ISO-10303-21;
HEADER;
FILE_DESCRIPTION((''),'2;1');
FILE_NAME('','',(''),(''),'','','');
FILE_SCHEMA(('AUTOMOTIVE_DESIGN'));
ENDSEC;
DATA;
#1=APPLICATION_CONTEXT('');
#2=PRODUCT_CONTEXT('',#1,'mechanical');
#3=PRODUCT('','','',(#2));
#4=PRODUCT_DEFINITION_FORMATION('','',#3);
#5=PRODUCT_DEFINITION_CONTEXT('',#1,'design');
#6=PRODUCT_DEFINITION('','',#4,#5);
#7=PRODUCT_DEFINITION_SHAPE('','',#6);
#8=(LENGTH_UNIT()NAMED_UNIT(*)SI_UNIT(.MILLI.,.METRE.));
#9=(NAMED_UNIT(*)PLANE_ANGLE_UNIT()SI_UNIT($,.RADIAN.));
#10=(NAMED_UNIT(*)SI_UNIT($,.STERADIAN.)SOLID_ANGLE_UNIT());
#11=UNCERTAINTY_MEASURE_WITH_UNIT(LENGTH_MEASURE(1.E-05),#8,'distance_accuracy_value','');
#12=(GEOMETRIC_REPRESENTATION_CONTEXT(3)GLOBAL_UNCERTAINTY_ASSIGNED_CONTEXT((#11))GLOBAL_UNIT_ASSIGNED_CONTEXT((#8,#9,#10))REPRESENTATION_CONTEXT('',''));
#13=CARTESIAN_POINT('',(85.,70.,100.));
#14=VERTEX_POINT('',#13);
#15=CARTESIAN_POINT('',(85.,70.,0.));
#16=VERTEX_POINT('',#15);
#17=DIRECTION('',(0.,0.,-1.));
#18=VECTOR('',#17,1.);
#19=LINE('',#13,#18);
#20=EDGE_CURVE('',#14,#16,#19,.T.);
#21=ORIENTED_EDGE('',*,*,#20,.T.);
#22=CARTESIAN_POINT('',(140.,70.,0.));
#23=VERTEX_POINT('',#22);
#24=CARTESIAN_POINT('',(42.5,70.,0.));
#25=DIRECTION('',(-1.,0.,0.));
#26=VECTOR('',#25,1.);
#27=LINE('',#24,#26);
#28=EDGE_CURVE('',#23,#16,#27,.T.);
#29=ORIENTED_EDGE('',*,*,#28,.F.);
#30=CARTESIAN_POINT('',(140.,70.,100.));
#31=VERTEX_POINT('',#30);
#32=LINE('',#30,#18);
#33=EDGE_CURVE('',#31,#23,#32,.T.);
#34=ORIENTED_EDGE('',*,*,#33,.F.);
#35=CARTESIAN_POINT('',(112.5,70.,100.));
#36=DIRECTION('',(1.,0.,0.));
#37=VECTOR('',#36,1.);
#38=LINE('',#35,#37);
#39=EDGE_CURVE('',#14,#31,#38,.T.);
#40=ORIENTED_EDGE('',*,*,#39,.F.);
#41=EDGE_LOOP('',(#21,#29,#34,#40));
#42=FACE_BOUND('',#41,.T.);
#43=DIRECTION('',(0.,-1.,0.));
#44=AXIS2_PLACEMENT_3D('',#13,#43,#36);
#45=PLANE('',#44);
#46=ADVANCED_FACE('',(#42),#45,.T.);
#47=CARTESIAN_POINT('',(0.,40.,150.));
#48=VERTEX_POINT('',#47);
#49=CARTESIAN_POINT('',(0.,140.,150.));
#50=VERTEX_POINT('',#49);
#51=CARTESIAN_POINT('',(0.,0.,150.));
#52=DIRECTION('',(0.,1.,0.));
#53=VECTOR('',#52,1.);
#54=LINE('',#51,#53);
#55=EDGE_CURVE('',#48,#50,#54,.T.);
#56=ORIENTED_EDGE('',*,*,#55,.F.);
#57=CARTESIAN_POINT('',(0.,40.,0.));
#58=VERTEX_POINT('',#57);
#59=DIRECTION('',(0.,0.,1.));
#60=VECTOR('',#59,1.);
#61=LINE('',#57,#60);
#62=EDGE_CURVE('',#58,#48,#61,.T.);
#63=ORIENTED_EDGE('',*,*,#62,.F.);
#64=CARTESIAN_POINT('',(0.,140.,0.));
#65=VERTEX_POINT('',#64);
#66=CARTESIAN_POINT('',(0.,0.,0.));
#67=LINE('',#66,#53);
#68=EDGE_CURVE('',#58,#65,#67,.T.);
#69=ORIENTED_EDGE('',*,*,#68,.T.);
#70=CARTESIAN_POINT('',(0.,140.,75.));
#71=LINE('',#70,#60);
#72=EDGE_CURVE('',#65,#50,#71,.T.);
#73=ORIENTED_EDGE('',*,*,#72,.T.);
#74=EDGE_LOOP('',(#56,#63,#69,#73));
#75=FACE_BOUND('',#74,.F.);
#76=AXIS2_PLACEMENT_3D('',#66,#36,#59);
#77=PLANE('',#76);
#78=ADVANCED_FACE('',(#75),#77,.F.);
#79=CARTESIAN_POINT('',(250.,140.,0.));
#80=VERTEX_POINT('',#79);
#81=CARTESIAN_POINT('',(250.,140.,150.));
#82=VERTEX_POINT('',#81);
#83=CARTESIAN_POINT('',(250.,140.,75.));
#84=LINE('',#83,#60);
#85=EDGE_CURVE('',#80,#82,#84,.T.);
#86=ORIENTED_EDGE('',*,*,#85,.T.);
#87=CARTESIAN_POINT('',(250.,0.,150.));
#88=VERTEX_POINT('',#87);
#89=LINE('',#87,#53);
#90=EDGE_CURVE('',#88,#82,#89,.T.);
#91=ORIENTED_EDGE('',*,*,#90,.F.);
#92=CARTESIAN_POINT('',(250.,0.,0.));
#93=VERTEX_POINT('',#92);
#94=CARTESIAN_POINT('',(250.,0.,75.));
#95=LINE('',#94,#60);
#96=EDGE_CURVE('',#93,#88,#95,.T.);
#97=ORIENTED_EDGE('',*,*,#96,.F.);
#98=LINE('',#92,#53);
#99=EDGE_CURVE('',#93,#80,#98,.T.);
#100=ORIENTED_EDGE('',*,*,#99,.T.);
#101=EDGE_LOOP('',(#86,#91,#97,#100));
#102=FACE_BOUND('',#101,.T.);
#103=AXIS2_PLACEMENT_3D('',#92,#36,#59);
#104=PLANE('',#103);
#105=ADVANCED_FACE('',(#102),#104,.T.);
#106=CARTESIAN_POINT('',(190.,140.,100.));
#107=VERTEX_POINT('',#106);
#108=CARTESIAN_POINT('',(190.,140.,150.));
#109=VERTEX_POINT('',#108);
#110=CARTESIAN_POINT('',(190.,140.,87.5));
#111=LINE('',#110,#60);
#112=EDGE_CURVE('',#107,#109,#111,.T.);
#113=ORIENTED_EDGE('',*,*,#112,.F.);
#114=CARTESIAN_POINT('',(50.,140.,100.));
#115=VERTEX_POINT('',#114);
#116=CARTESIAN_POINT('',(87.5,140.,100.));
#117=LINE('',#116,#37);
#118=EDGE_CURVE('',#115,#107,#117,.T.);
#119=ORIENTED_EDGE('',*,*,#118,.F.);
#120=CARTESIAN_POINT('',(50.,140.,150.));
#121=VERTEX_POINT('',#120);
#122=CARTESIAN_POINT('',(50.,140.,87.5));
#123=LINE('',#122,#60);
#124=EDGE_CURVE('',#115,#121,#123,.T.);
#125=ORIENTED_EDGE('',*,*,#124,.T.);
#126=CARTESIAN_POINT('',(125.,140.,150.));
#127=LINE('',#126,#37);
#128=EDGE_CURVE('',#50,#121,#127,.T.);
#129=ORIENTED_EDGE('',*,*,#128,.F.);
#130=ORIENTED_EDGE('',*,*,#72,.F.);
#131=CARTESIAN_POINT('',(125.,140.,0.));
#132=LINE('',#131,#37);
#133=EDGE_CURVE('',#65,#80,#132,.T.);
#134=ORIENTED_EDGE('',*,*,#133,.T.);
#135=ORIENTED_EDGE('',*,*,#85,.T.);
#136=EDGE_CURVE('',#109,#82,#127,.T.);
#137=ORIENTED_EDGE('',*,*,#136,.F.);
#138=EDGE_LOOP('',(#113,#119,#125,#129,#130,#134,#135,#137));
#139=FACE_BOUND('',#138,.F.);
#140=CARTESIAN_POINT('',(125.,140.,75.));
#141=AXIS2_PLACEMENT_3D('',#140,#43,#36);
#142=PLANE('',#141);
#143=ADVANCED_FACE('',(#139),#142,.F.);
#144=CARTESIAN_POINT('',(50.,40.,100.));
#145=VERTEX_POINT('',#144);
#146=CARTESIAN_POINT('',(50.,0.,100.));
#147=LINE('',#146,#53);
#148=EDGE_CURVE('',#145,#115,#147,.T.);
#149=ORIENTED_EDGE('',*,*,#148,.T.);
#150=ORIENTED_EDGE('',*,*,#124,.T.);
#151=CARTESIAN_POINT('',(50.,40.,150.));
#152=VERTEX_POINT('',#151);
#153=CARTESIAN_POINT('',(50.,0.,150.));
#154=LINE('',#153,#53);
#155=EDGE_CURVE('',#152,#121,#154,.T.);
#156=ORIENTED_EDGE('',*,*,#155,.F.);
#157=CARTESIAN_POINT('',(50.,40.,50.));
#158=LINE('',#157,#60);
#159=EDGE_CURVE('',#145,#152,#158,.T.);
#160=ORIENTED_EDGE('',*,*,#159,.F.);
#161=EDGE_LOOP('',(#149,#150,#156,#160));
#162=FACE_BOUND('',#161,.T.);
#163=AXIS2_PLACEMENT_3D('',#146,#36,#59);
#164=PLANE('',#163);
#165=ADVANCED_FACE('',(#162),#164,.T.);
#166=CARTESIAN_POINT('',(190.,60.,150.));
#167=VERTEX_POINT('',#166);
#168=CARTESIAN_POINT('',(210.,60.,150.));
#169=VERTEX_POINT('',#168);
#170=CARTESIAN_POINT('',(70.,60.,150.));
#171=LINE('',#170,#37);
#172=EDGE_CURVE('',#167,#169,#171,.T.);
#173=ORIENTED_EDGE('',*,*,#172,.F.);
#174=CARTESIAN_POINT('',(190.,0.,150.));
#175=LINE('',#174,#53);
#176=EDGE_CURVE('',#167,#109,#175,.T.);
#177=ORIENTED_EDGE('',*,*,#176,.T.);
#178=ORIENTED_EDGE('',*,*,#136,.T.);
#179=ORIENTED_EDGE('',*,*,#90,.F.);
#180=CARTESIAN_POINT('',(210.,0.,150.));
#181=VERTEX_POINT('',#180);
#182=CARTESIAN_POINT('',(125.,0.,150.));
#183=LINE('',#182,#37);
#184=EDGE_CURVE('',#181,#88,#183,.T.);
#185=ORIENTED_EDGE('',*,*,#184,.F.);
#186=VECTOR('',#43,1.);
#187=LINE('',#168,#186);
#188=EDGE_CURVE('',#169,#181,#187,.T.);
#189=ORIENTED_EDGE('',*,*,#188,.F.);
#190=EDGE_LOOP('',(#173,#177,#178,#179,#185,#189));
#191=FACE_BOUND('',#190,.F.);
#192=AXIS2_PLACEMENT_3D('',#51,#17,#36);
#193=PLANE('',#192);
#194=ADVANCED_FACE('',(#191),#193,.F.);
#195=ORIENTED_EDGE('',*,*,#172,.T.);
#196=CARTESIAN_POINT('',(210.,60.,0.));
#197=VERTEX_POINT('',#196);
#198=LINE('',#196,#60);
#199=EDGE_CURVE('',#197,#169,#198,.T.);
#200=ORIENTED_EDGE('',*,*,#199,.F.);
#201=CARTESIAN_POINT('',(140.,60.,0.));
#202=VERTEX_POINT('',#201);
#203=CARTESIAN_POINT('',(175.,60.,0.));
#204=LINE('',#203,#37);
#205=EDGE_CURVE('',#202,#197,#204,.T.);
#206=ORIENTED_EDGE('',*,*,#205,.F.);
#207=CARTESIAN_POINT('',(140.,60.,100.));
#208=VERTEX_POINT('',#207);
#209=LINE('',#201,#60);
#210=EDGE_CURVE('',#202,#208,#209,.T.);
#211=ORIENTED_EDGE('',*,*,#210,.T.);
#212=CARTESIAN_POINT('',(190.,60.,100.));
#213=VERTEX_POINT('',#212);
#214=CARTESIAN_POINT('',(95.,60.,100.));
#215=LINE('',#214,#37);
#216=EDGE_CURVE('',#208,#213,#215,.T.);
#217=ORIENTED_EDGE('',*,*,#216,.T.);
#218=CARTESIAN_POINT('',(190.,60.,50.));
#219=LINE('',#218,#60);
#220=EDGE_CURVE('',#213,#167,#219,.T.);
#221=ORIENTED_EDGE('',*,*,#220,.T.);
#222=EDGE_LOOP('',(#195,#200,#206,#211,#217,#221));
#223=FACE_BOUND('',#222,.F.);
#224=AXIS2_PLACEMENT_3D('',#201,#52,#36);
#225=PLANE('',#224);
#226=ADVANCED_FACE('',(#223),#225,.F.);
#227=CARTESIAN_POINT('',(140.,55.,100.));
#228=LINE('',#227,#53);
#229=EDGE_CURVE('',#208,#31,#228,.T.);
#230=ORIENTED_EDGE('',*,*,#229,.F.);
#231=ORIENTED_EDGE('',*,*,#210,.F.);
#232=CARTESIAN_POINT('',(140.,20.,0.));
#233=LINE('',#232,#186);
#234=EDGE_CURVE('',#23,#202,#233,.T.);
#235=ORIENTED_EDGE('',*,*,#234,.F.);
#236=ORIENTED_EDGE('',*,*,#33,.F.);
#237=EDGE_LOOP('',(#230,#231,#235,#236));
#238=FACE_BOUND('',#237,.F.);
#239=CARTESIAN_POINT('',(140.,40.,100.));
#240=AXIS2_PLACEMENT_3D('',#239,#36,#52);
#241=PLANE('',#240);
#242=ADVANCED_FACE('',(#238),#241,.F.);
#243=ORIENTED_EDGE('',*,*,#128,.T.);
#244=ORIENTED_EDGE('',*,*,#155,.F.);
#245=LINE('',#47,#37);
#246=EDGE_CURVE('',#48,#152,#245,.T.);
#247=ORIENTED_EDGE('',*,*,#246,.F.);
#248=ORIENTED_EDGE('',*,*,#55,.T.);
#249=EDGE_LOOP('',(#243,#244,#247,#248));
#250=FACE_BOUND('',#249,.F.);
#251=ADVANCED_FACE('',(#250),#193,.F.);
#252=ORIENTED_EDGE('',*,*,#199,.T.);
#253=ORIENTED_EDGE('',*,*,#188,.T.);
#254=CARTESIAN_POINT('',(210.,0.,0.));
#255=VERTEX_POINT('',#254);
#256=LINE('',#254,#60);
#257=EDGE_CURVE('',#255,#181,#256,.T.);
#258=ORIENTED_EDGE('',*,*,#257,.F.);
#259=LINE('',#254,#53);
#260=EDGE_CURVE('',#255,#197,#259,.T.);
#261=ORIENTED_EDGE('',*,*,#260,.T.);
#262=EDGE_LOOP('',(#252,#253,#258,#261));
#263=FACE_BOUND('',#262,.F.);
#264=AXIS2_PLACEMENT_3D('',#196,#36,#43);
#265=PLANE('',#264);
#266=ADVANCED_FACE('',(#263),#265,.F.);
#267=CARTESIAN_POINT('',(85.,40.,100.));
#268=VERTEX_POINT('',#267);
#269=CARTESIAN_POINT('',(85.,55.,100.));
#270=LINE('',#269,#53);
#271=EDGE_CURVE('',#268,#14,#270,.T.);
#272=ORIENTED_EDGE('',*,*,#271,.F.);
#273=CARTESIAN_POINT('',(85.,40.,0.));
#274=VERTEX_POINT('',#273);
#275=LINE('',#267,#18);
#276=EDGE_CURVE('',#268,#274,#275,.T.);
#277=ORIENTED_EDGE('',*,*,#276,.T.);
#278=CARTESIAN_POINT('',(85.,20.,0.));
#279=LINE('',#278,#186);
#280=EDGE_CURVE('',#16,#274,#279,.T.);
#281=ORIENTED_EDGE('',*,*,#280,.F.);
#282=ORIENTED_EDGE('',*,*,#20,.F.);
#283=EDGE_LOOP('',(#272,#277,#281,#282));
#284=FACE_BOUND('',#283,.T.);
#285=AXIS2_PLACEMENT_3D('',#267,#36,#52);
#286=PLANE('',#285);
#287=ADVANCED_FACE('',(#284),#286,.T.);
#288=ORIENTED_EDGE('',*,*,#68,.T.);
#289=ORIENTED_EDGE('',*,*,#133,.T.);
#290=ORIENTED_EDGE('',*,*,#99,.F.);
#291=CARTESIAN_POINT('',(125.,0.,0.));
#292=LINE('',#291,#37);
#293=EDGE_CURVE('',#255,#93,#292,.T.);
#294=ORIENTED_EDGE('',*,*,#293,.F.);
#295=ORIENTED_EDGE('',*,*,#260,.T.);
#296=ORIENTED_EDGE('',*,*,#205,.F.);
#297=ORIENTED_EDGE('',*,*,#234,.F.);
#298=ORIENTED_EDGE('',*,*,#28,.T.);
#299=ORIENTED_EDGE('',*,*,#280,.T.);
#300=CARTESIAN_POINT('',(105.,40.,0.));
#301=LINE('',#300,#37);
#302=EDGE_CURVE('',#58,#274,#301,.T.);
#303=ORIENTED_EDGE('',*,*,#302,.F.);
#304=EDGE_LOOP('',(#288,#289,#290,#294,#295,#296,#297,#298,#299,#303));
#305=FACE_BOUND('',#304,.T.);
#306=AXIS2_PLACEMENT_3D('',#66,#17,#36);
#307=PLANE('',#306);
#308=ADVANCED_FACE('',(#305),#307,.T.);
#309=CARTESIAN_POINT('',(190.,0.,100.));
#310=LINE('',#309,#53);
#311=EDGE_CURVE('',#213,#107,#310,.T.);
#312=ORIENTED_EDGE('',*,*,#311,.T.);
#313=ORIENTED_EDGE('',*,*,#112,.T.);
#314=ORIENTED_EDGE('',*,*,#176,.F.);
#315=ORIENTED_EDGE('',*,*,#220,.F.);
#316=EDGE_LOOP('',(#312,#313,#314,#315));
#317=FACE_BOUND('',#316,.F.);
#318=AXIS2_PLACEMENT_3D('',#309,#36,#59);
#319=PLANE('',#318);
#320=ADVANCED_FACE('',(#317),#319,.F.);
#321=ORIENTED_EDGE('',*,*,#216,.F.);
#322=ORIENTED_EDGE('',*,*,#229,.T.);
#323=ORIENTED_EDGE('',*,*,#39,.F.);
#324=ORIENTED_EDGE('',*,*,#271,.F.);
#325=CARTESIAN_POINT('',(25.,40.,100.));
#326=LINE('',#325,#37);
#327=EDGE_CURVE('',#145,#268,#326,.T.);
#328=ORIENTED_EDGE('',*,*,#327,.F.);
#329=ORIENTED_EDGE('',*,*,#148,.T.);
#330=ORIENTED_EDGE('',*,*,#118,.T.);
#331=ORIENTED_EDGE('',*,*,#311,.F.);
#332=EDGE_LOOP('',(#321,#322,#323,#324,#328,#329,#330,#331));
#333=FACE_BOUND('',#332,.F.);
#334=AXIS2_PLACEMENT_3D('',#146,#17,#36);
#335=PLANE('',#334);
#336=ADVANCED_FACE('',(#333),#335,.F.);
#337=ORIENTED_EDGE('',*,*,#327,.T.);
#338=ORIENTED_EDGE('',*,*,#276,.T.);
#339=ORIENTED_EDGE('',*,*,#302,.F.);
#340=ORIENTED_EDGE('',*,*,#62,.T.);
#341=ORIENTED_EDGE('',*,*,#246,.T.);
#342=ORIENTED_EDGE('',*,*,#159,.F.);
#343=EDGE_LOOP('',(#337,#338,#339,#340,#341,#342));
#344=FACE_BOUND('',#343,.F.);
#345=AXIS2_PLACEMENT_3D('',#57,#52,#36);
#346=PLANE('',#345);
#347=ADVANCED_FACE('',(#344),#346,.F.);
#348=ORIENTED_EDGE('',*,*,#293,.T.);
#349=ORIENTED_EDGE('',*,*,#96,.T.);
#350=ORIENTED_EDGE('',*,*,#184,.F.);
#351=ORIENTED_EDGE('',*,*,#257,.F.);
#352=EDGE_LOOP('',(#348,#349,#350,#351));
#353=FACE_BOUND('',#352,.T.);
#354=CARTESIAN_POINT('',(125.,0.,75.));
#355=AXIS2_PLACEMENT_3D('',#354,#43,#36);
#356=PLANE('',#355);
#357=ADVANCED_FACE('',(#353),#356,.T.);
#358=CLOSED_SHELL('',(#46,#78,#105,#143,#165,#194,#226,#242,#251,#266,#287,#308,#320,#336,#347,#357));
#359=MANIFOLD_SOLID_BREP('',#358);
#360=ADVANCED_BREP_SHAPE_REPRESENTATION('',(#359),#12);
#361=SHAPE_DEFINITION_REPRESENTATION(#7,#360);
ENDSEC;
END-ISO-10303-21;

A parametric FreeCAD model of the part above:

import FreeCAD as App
import Part
import Sketcher
Q = App.Units.Quantity

doc = App.newDocument("Part")
body = doc.addObject("PartDesign::Body", "Body")

sketch1 = body.newObject("Sketcher::SketchObject", "Sketch")
sketch1.AttachmentSupport = (doc.getObject("XZ_Plane"), [""])
sketch1.MapMode = "FlatFace"
sketch1.addGeometry(Part.LineSegment(App.Vector(0, 150, 0), App.Vector(0, 0, 0)), False)
sketch1.addGeometry(Part.LineSegment(App.Vector(0, 0, 0), App.Vector(250, 0, 0)), False)
sketch1.addGeometry(Part.LineSegment(App.Vector(250, 0, 0), App.Vector(250, 150, 0)), False)
sketch1.addGeometry(Part.LineSegment(App.Vector(250, 150, 0), App.Vector(0, 150, 0)), False)
sketch1.addConstraint(Sketcher.Constraint("Coincident", 0, 2, 1, 1))
sketch1.addConstraint(Sketcher.Constraint("Coincident", 1, 2, 2, 1))
sketch1.addConstraint(Sketcher.Constraint("Coincident", 2, 2, 3, 1))
sketch1.addConstraint(Sketcher.Constraint("Coincident", 3, 2, 0, 1))
sketch1.addConstraint(Sketcher.Constraint("Vertical", 0))
sketch1.addConstraint(Sketcher.Constraint("Horizontal", 1))
sketch1.addConstraint(Sketcher.Constraint("Vertical", 2))
sketch1.addConstraint(Sketcher.Constraint("Horizontal", 3))
sketch1.addConstraint(Sketcher.Constraint("Coincident", 0, 2, -1, 1))
sketch1.addConstraint(Sketcher.Constraint("DistanceX", 1, 1, 1, 2, Q("250 mm")))
sketch1.addConstraint(Sketcher.Constraint("DistanceY", 0, 2, 0, 1, Q("150 mm")))
pad1 = body.newObject("PartDesign::Pad", "Pad")
pad1.Profile = sketch1
pad1.Length = 140
pad1.Reversed = True

sketch2 = body.newObject("Sketcher::SketchObject", "Sketch001")
sketch2.AttachmentSupport = (doc.getObject("XZ_Plane"), [""])
sketch2.MapMode = "FlatFace"
sketch2.addGeometry(Part.LineSegment(App.Vector(50, 150, 0), App.Vector(50, 100, 0)), False)
sketch2.addGeometry(Part.LineSegment(App.Vector(50, 100, 0), App.Vector(190, 100, 0)), False)
sketch2.addGeometry(Part.LineSegment(App.Vector(190, 100, 0), App.Vector(190, 150, 0)), False)
sketch2.addGeometry(Part.LineSegment(App.Vector(190, 150, 0), App.Vector(50, 150, 0)), False)
sketch2.addConstraint(Sketcher.Constraint("Coincident", 0, 2, 1, 1))
sketch2.addConstraint(Sketcher.Constraint("Coincident", 1, 2, 2, 1))
sketch2.addConstraint(Sketcher.Constraint("Coincident", 2, 2, 3, 1))
sketch2.addConstraint(Sketcher.Constraint("Coincident", 3, 2, 0, 1))
sketch2.addConstraint(Sketcher.Constraint("Vertical", 0))
sketch2.addConstraint(Sketcher.Constraint("Horizontal", 1))
sketch2.addConstraint(Sketcher.Constraint("Vertical", 2))
sketch2.addConstraint(Sketcher.Constraint("Horizontal", 3))
sketch2.addConstraint(Sketcher.Constraint("DistanceX", 1, 1, 1, 2, Q("140 mm")))
sketch2.addConstraint(Sketcher.Constraint("DistanceY", 0, 2, 0, 1, Q("50 mm")))
sketch2.addConstraint(Sketcher.Constraint("DistanceX", -1, 1, 0, 2, Q("50 mm")))
sketch2.addConstraint(Sketcher.Constraint("DistanceY", -1, 1, 0, 2, Q("100 mm")))
pocket1 = body.newObject("PartDesign::Pocket", "Pocket")
pocket1.Profile = sketch2
pocket1.Type = "ThroughAll"

sketch3 = body.newObject("Sketcher::SketchObject", "Sketch002")
sketch3.AttachmentSupport = (doc.getObject("XY_Plane"), [""])
sketch3.MapMode = "FlatFace"
sketch3.addGeometry(Part.LineSegment(App.Vector(0, 0, 0), App.Vector(0, 40, 0)), False)
sketch3.addGeometry(Part.LineSegment(App.Vector(0, 40, 0), App.Vector(210, 40, 0)), False)
sketch3.addGeometry(Part.LineSegment(App.Vector(210, 40, 0), App.Vector(210, 0, 0)), False)
sketch3.addGeometry(Part.LineSegment(App.Vector(210, 0, 0), App.Vector(0, 0, 0)), False)
sketch3.addConstraint(Sketcher.Constraint("Coincident", 0, 2, 1, 1))
sketch3.addConstraint(Sketcher.Constraint("Coincident", 1, 2, 2, 1))
sketch3.addConstraint(Sketcher.Constraint("Coincident", 2, 2, 3, 1))
sketch3.addConstraint(Sketcher.Constraint("Coincident", 3, 2, 0, 1))
sketch3.addConstraint(Sketcher.Constraint("Vertical", 0))
sketch3.addConstraint(Sketcher.Constraint("Horizontal", 1))
sketch3.addConstraint(Sketcher.Constraint("Vertical", 2))
sketch3.addConstraint(Sketcher.Constraint("Horizontal", 3))
sketch3.addConstraint(Sketcher.Constraint("Coincident", 3, 2, -1, 1))
sketch3.addConstraint(Sketcher.Constraint("DistanceX", 1, 1, 1, 2, Q("210 mm")))
sketch3.addConstraint(Sketcher.Constraint("DistanceY", 0, 1, 0, 2, Q("40 mm")))
pocket2 = body.newObject("PartDesign::Pocket", "Pocket001")
pocket2.Profile = sketch3
pocket2.Type = "ThroughAll"
pocket2.Reversed = True

sketch4 = body.newObject("Sketcher::SketchObject", "Sketch003")
sketch4.AttachmentSupport = (doc.getObject("XY_Plane"), [""])
sketch4.MapMode = "FlatFace"
sketch4.AttachmentOffset = App.Placement(App.Vector(0, 0, 100), App.Rotation())
sketch4.addGeometry(Part.LineSegment(App.Vector(85, 70, 0), App.Vector(85, 40, 0)), False)
sketch4.addGeometry(Part.LineSegment(App.Vector(85, 40, 0), App.Vector(140, 40, 0)), False)
sketch4.addGeometry(Part.LineSegment(App.Vector(140, 40, 0), App.Vector(140, 70, 0)), False)
sketch4.addGeometry(Part.LineSegment(App.Vector(140, 70, 0), App.Vector(85, 70, 0)), False)
sketch4.addConstraint(Sketcher.Constraint("Coincident", 0, 2, 1, 1))
sketch4.addConstraint(Sketcher.Constraint("Coincident", 1, 2, 2, 1))
sketch4.addConstraint(Sketcher.Constraint("Coincident", 2, 2, 3, 1))
sketch4.addConstraint(Sketcher.Constraint("Coincident", 3, 2, 0, 1))
sketch4.addConstraint(Sketcher.Constraint("Vertical", 0))
sketch4.addConstraint(Sketcher.Constraint("Horizontal", 1))
sketch4.addConstraint(Sketcher.Constraint("Vertical", 2))
sketch4.addConstraint(Sketcher.Constraint("Horizontal", 3))
sketch4.addConstraint(Sketcher.Constraint("DistanceX", 1, 1, 1, 2, Q("55 mm")))
sketch4.addConstraint(Sketcher.Constraint("DistanceY", 0, 2, 0, 1, Q("30 mm")))
sketch4.addConstraint(Sketcher.Constraint("DistanceX", -1, 1, 0, 2, Q("85 mm")))
sketch4.addConstraint(Sketcher.Constraint("DistanceY", -1, 1, 0, 2, Q("40 mm")))
pocket3 = body.newObject("PartDesign::Pocket", "Pocket002")
pocket3.Profile = sketch4
pocket3.Type = "ThroughAll"

sketch5 = body.newObject("Sketcher::SketchObject", "Sketch004")
sketch5.AttachmentSupport = (doc.getObject("XY_Plane"), [""])
sketch5.MapMode = "FlatFace"
sketch5.addGeometry(Part.LineSegment(App.Vector(140, 40, 0), App.Vector(140, 60, 0)), False)
sketch5.addGeometry(Part.LineSegment(App.Vector(140, 60, 0), App.Vector(210, 60, 0)), False)
sketch5.addGeometry(Part.LineSegment(App.Vector(210, 60, 0), App.Vector(210, 40, 0)), False)
sketch5.addGeometry(Part.LineSegment(App.Vector(210, 40, 0), App.Vector(140, 40, 0)), False)
sketch5.addConstraint(Sketcher.Constraint("Coincident", 0, 2, 1, 1))
sketch5.addConstraint(Sketcher.Constraint("Coincident", 1, 2, 2, 1))
sketch5.addConstraint(Sketcher.Constraint("Coincident", 2, 2, 3, 1))
sketch5.addConstraint(Sketcher.Constraint("Coincident", 3, 2, 0, 1))
sketch5.addConstraint(Sketcher.Constraint("Vertical", 0))
sketch5.addConstraint(Sketcher.Constraint("Horizontal", 1))
sketch5.addConstraint(Sketcher.Constraint("Vertical", 2))
sketch5.addConstraint(Sketcher.Constraint("Horizontal", 3))
sketch5.addConstraint(Sketcher.Constraint("DistanceX", 1, 1, 1, 2, Q("70 mm")))
sketch5.addConstraint(Sketcher.Constraint("DistanceY", 0, 1, 0, 2, Q("20 mm")))
sketch5.addConstraint(Sketcher.Constraint("DistanceX", -1, 1, 0, 2, Q("140 mm")))
sketch5.addConstraint(Sketcher.Constraint("DistanceY", -1, 1, 0, 2, Q("60 mm")))
pocket4 = body.newObject("PartDesign::Pocket", "Pocket003")
pocket4.Profile = sketch5
pocket4.Type = "ThroughAll"
pocket4.Reversed = True

doc.recompute()
